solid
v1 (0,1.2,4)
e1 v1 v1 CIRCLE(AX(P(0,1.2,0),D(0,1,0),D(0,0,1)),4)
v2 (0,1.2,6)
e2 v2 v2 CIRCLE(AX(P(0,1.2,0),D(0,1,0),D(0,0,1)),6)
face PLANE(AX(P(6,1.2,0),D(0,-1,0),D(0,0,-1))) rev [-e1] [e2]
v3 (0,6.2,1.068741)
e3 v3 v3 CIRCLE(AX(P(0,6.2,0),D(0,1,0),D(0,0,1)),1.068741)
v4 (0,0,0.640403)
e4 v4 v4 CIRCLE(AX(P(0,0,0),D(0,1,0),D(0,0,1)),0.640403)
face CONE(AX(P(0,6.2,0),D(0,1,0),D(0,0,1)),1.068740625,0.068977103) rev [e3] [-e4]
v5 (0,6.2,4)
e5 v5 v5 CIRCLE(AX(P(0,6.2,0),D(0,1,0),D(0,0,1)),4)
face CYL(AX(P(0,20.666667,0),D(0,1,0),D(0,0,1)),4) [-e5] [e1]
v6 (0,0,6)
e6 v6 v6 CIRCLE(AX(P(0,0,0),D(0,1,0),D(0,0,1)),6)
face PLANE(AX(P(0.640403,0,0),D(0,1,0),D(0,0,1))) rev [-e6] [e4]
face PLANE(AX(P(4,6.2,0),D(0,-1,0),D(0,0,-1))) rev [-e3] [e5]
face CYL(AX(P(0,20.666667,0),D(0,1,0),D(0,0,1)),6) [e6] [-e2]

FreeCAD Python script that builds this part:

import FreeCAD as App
import Part
import Sketcher
from FreeCAD import Vector
Q = App.Units.Quantity

doc = App.newDocument("Part")
body = doc.addObject("PartDesign::Body", "Body")

# Sketch on XY plane
sketch1 = doc.addObject("Sketcher::SketchObject", "Sketch")
body.addObject(sketch1)
sketch1.AttachmentSupport = (doc.XY_Plane, [""])
sketch1.MapMode = "FlatFace"
sketch1.addGeometry(Part.LineSegment(Vector(0.640403, 0, 0), Vector(6, 0, 0)), False)
sketch1.addGeometry(Part.LineSegment(Vector(6, 0, 0), Vector(6, 1.2, 0)), False)
sketch1.addGeometry(Part.LineSegment(Vector(6, 1.2, 0), Vector(4, 1.2, 0)), False)
sketch1.addGeometry(Part.LineSegment(Vector(4, 1.2, 0), Vector(4, 6.2, 0)), False)
sketch1.addGeometry(Part.LineSegment(Vector(4, 6.2, 0), Vector(1.068741, 6.2, 0)), False)
sketch1.addGeometry(Part.LineSegment(Vector(1.068741, 6.2, 0), Vector(0.640403, 0, 0)), False)
sketch1.addConstraint(Sketcher.Constraint("Coincident", 0, 2, 1, 1))
sketch1.addConstraint(Sketcher.Constraint("Coincident", 1, 2, 2, 1))
sketch1.addConstraint(Sketcher.Constraint("Coincident", 2, 2, 3, 1))
sketch1.addConstraint(Sketcher.Constraint("Coincident", 3, 2, 4, 1))
sketch1.addConstraint(Sketcher.Constraint("Coincident", 4, 2, 5, 1))
sketch1.addConstraint(Sketcher.Constraint("Coincident", 5, 2, 0, 1))
sketch1.addConstraint(Sketcher.Constraint("Horizontal", 0))
sketch1.addConstraint(Sketcher.Constraint("Vertical", 1))
sketch1.addConstraint(Sketcher.Constraint("Horizontal", 2))
sketch1.addConstraint(Sketcher.Constraint("Vertical", 3))
sketch1.addConstraint(Sketcher.Constraint("Horizontal", 4))
sketch1.addConstraint(Sketcher.Constraint("PointOnObject", 0, 2, -1))
sketch1.addConstraint(Sketcher.Constraint("DistanceX", 2, 2, 2, 1, Q("2 mm")))
sketch1.addConstraint(Sketcher.Constraint("DistanceY", 3, 1, 3, 2, Q("5 mm")))
sketch1.addConstraint(Sketcher.Constraint("DistanceY", 1, 1, 1, 2, Q("1.2 mm")))
sketch1.addConstraint(Sketcher.Constraint("DistanceX", -1, 1, 0, 2, Q("6 mm")))
sketch1.addConstraint(Sketcher.Constraint("DistanceX", 4, 2, 4, 1, Q("2.931259 mm")))
sketch1.addConstraint(Sketcher.Constraint("Distance", 5, Q("6.214779 mm")))
revolution = doc.addObject("PartDesign::Revolution", "Revolution")
body.addObject(revolution)
revolution.Profile = sketch1
revolution.ReferenceAxis = (sketch1, ["V_Axis"])
revolution.Angle = 360

doc.recompute()
